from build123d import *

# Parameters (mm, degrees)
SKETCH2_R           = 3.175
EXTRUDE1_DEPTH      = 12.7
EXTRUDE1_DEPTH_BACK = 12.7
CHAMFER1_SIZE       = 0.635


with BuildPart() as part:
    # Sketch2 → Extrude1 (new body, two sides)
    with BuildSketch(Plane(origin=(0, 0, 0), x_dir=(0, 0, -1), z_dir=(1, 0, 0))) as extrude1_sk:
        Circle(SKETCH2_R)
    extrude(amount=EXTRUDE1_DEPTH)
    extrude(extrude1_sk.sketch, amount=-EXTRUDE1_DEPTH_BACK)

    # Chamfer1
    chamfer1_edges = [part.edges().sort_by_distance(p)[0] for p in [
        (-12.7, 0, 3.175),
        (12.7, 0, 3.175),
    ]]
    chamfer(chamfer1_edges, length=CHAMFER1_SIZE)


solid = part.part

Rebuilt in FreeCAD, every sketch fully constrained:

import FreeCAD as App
import Part
import Sketcher

V = App.Vector
Q = App.Units.Quantity


def edges_at(feature, points):
    """Names of the edges that pass closest to the given points."""
    edges = feature.Shape.Edges
    near = lambda p: min(range(len(edges)), key=lambda i: edges[i].distToShape(Part.Vertex(*p))[0])
    return sorted({f"Edge{near(p) + 1}" for p in points})

doc = App.newDocument("Part")
body = doc.addObject("PartDesign::Body", "Body")

sketch1 = body.newObject("Sketcher::SketchObject", "Sketch")
sketch1.AttachmentSupport = (doc.getObject("YZ_Plane"), [""])
sketch1.MapMode = "FlatFace"
sketch1.addGeometry(Part.Circle(V(0, 0, 0), V(0, 0, 1), 3.175), False)
sketch1.addConstraint(Sketcher.Constraint("Coincident", 0, 3, -1, 1))
sketch1.addConstraint(Sketcher.Constraint("Diameter", 0, Q("0.25 in")))
pad1 = body.newObject("PartDesign::Pad", "Pad")
pad1.Profile = sketch1
pad1.Type = "TwoLengths"
pad1.Length = Q("0.5 in")
pad1.Length2 = Q("0.5 in")
doc.recompute()

chamfer = body.newObject("PartDesign::Chamfer", "Chamfer")
chamfer.Base = (pad1, edges_at(pad1, [(-12.7, 0, 3.175), (12.7, 0, 3.175)]))
chamfer.Size = Q("0.025 in")

doc.recompute()
